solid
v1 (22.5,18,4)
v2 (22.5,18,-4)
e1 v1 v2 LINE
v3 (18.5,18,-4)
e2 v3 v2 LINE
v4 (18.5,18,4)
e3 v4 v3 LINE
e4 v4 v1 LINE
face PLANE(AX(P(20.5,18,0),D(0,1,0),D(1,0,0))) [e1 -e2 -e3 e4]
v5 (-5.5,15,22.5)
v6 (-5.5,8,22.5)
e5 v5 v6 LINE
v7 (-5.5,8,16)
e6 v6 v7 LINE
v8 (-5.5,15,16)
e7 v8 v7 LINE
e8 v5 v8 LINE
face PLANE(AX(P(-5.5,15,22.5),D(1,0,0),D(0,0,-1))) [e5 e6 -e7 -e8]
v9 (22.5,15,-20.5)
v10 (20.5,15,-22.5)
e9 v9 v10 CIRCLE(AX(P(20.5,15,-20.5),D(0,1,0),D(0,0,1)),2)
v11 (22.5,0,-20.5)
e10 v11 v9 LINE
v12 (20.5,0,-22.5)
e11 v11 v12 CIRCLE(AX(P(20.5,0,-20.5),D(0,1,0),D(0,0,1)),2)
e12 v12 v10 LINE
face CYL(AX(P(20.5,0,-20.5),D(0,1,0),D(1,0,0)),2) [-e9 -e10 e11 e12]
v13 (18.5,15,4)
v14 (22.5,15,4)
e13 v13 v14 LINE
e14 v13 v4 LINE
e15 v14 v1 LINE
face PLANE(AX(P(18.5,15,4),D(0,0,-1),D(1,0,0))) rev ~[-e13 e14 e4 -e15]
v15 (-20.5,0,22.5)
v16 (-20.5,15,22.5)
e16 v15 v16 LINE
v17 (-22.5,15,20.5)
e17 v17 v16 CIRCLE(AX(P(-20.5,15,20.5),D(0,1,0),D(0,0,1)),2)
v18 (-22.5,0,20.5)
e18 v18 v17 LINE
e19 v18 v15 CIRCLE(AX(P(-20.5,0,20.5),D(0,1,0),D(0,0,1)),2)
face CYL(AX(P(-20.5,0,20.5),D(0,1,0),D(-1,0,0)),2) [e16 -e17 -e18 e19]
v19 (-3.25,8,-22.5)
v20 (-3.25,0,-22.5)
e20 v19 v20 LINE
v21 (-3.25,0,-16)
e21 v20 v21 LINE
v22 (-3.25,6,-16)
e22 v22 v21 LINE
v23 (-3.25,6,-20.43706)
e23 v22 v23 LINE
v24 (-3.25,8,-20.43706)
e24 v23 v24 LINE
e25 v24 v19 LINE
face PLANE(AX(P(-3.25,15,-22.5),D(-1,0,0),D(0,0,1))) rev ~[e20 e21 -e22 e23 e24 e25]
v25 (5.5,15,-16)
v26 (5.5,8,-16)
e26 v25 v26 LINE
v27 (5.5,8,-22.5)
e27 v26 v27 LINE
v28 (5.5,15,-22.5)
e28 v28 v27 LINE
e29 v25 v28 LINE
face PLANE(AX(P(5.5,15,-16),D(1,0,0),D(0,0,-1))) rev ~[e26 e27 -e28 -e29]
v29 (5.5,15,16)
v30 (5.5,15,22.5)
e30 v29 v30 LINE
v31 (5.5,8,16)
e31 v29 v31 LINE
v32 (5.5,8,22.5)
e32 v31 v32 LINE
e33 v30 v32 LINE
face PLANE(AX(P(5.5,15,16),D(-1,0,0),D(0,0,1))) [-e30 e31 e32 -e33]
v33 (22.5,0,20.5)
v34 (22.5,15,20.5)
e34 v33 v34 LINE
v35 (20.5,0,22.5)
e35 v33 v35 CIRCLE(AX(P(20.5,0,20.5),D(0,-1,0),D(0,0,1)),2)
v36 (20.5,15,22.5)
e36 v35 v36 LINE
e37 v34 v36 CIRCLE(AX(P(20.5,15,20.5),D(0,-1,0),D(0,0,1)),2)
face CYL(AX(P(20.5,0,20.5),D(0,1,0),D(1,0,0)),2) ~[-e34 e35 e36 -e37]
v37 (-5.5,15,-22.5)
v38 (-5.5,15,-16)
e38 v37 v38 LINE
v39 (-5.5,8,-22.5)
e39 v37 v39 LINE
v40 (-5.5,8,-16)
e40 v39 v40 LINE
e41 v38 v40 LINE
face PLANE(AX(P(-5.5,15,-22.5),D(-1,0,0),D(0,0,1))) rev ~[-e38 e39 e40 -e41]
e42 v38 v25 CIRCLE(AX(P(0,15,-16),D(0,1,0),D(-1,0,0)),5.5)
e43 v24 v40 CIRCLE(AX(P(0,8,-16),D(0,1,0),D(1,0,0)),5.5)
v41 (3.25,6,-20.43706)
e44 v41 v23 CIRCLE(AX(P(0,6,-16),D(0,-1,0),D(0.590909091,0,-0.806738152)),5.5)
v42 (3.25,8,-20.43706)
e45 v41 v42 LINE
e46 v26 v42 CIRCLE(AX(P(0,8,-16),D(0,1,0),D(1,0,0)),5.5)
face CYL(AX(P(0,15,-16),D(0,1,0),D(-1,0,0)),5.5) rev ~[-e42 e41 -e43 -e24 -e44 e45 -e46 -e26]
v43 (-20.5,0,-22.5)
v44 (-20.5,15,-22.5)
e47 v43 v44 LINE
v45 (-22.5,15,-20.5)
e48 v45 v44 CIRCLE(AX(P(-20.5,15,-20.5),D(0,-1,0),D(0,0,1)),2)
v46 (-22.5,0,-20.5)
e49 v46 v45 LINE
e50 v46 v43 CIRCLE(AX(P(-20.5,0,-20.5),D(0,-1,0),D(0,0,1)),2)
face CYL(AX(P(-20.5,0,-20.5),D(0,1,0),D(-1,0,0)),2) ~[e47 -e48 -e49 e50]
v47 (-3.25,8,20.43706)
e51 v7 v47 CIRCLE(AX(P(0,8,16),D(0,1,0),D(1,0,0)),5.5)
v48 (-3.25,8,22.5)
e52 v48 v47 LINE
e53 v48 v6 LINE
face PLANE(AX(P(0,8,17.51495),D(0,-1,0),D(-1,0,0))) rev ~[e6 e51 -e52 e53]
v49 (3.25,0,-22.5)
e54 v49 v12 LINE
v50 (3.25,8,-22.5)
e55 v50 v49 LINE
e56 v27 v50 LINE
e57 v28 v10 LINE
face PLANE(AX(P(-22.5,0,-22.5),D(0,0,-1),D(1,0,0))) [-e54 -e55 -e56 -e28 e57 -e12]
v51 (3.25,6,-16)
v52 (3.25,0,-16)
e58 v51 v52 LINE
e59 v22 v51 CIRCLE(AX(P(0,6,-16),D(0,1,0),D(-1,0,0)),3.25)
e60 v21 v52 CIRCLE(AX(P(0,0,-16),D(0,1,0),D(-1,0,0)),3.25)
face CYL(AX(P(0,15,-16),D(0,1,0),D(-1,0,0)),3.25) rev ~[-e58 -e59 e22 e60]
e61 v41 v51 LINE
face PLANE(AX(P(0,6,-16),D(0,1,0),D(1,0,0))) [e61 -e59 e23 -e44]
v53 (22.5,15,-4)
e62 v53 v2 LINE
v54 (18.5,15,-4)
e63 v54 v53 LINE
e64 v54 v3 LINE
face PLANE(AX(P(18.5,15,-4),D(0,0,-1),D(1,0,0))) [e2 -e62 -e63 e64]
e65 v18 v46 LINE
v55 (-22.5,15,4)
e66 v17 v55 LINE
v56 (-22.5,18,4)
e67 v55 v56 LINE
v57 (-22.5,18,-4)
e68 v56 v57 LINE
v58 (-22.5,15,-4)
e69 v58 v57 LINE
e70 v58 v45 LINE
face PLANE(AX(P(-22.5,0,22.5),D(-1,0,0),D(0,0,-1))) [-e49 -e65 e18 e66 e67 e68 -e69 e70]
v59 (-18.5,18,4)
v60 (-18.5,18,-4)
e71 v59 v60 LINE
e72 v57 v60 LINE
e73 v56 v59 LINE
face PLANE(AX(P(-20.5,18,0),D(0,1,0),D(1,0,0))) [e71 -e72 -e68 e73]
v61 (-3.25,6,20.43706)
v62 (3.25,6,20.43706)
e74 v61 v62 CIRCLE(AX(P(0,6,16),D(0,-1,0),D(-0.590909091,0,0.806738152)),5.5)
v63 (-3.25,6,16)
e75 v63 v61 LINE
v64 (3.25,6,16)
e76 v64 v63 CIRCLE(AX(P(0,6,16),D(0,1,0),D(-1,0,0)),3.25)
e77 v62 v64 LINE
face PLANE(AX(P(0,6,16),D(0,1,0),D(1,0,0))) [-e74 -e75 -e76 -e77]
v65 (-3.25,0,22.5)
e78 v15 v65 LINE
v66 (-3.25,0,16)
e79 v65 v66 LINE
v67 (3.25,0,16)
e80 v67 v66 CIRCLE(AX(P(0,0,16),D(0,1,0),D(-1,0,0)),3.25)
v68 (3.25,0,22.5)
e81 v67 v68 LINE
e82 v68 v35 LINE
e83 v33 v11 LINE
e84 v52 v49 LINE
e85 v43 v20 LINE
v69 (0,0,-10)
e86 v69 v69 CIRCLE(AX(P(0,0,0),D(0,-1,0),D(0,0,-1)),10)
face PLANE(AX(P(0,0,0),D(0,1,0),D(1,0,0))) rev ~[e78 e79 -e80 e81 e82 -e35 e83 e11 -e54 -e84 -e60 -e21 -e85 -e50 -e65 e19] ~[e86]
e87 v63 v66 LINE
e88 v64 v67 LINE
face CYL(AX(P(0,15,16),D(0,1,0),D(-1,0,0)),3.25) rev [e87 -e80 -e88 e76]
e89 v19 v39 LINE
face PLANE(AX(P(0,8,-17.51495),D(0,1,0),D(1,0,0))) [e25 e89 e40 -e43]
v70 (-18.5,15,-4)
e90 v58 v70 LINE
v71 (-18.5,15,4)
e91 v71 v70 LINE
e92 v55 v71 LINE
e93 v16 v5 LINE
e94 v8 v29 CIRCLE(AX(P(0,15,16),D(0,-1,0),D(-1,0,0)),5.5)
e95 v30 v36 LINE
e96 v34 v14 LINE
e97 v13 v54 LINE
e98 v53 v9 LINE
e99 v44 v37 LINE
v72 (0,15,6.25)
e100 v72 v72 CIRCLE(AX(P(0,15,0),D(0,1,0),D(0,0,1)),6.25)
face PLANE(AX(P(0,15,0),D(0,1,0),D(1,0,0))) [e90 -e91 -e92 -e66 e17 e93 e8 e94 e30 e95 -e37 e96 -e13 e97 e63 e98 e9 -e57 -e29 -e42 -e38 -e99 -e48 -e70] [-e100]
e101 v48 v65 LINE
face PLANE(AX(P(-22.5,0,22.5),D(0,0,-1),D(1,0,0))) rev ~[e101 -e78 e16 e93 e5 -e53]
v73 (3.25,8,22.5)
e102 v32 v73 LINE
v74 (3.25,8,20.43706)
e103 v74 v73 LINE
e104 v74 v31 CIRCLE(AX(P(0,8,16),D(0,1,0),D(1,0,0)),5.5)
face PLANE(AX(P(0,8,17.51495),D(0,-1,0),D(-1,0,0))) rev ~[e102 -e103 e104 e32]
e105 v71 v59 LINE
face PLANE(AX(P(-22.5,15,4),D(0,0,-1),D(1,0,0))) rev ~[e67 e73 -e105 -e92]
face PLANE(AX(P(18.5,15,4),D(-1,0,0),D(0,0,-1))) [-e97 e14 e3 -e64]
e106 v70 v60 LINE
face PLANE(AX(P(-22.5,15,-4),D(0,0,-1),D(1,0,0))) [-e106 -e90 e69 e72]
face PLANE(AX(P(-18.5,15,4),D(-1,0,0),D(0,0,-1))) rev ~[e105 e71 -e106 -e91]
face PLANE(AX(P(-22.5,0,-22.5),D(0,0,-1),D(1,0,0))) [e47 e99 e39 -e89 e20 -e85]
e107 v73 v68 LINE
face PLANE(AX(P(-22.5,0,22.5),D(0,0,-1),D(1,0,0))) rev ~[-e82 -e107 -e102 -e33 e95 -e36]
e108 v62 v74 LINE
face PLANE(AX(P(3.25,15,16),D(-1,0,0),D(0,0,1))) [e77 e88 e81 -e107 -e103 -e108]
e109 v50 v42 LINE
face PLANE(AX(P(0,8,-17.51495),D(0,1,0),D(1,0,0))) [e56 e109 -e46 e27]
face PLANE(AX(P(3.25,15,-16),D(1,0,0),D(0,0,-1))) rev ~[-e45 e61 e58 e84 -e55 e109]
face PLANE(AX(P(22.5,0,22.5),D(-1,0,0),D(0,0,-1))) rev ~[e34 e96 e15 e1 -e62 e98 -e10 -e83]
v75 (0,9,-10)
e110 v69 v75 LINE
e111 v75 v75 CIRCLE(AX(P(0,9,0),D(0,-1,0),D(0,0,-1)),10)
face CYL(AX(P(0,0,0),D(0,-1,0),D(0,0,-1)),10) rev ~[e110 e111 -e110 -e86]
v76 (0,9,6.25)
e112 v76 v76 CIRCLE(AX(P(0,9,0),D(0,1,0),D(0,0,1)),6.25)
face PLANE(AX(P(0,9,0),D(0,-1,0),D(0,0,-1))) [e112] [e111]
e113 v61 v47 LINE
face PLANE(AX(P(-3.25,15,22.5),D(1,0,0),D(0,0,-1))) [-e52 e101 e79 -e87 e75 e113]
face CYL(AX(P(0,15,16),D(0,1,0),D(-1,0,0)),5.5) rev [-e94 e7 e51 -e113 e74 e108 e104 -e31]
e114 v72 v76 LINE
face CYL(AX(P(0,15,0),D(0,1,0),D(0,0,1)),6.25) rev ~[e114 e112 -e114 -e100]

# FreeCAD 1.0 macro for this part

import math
import FreeCAD as App
import Part
import Sketcher
from FreeCAD import Vector
Q = App.Units.Quantity


def edges_at(feature, points):
    """Names of the edges that pass closest to the given points."""
    edges = feature.Shape.Edges
    near = lambda p: min(range(len(edges)), key=lambda i: edges[i].distToShape(Part.Vertex(*p))[0])
    return sorted({f"Edge{near(p) + 1}" for p in points})

doc = App.newDocument("Part")
body = doc.addObject("PartDesign::Body", "Body")

sketch1 = body.newObject("Sketcher::SketchObject", "Sketch")
sketch1.AttachmentSupport = (doc.getObject("XZ_Plane"), [""])
sketch1.MapMode = "FlatFace"
sketch1.addGeometry(Part.LineSegment(Vector(-22, -22, 0), Vector(-22, 22, 0)), False)
sketch1.addGeometry(Part.LineSegment(Vector(-22, 22, 0), Vector(22, 22, 0)), False)
sketch1.addGeometry(Part.LineSegment(Vector(22, 22, 0), Vector(22, -22, 0)), False)
sketch1.addGeometry(Part.LineSegment(Vector(22, -22, 0), Vector(-22, -22, 0)), False)
sketch1.addConstraint(Sketcher.Constraint("Coincident", 0, 2, 1, 1))
sketch1.addConstraint(Sketcher.Constraint("Coincident", 1, 2, 2, 1))
sketch1.addConstraint(Sketcher.Constraint("Coincident", 2, 2, 3, 1))
sketch1.addConstraint(Sketcher.Constraint("Coincident", 3, 2, 0, 1))
sketch1.addConstraint(Sketcher.Constraint("Vertical", 0))
sketch1.addConstraint(Sketcher.Constraint("Horizontal", 1))
sketch1.addConstraint(Sketcher.Constraint("Vertical", 2))
sketch1.addConstraint(Sketcher.Constraint("Horizontal", 3))
sketch1.addConstraint(Sketcher.Constraint("Symmetric", 0, 2, 2, 2, -1, 1))
sketch1.addConstraint(Sketcher.Constraint("Equal", 3, 0))
sketch1.addConstraint(Sketcher.Constraint("DistanceX", 1, 1, 1, 2, Q("45 mm")))
pad1 = body.newObject("PartDesign::Pad", "Pad")
pad1.Profile = sketch1
pad1.Length = 15
pad1.Reversed = True

sketch2 = body.newObject("Sketcher::SketchObject", "Sketch001")
sketch2.AttachmentSupport = (doc.getObject("XZ_Plane"), [""])
sketch2.MapMode = "FlatFace"
sketch2.AttachmentOffset = App.Placement(Vector(0, 0, -15), App.Rotation())
sketch2.addGeometry(Part.LineSegment(Vector(-22.5, -4, 0), Vector(-22.5, 4, 0)), False)
sketch2.addGeometry(Part.LineSegment(Vector(-22.5, 4, 0), Vector(-18.5, 4, 0)), False)
sketch2.addGeometry(Part.LineSegment(Vector(-18.5, 4, 0), Vector(-18.5, -4, 0)), False)
sketch2.addGeometry(Part.LineSegment(Vector(-18.5, -4, 0), Vector(-22.5, -4, 0)), False)
sketch2.addGeometry(Part.LineSegment(Vector(18.5, -4, 0), Vector(18.5, 4, 0)), False)
sketch2.addGeometry(Part.LineSegment(Vector(18.5, 4, 0), Vector(22.5, 4, 0)), False)
sketch2.addGeometry(Part.LineSegment(Vector(22.5, 4, 0), Vector(22.5, -4, 0)), False)
sketch2.addGeometry(Part.LineSegment(Vector(22.5, -4, 0), Vector(18.5, -4, 0)), False)
sketch2.addConstraint(Sketcher.Constraint("Coincident", 0, 2, 1, 1))
sketch2.addConstraint(Sketcher.Constraint("Coincident", 1, 2, 2, 1))
sketch2.addConstraint(Sketcher.Constraint("Coincident", 2, 2, 3, 1))
sketch2.addConstraint(Sketcher.Constraint("Coincident", 3, 2, 0, 1))
sketch2.addConstraint(Sketcher.Constraint("Coincident", 4, 2, 5, 1))
sketch2.addConstraint(Sketcher.Constraint("Coincident", 5, 2, 6, 1))
sketch2.addConstraint(Sketcher.Constraint("Coincident", 6, 2, 7, 1))
sketch2.addConstraint(Sketcher.Constraint("Coincident", 7, 2, 4, 1))
sketch2.addConstraint(Sketcher.Constraint("Vertical", 0))
sketch2.addConstraint(Sketcher.Constraint("Horizontal", 1))
sketch2.addConstraint(Sketcher.Constraint("Vertical", 2))
sketch2.addConstraint(Sketcher.Constraint("Horizontal", 3))
sketch2.addConstraint(Sketcher.Constraint("Vertical", 4))
sketch2.addConstraint(Sketcher.Constraint("Horizontal", 5))
sketch2.addConstraint(Sketcher.Constraint("Vertical", 6))
sketch2.addConstraint(Sketcher.Constraint("Horizontal", 7))
sketch2.addConstraint(Sketcher.Constraint("Symmetric", 2, 2, 4, 2, -1, 1))
sketch2.addConstraint(Sketcher.Constraint("Symmetric", 0, 2, 6, 2, -1, 1))
sketch2.addConstraint(Sketcher.Constraint("Horizontal", 1, 2, 4, 2))
sketch2.addConstraint(Sketcher.Constraint("DistanceX", 1, 1, 1, 2, Q("4 mm")))
sketch2.addConstraint(Sketcher.Constraint("DistanceY", 0, 1, 0, 2, Q("8 mm")))
sketch2.addConstraint(Sketcher.Constraint("DistanceX", 1, 2, 4, 2, Q("37 mm")))
pad2 = body.newObject("PartDesign::Pad", "Pad001")
pad2.Profile = sketch2
pad2.Length = 3
pad2.Reversed = True

sketch3 = body.newObject("Sketcher::SketchObject", "Sketch002")
sketch3.AttachmentSupport = (doc.getObject("XZ_Plane"), [""])
sketch3.MapMode = "FlatFace"
sketch3.AttachmentOffset = App.Placement(Vector(0, 0, -15), App.Rotation())
sketch3.addGeometry(Part.Circle(Vector(0, 0, 0), Vector(0, 0, 1), 6.2), False)
sketch3.addGeometry(Part.LineSegment(Vector(-3.2, 16, 0), Vector(-3.2, 22.5, 0)), False)
sketch3.addGeometry(Part.LineSegment(Vector(-3.2, 22.5, 0), Vector(3.2, 22.5, 0)), False)
sketch3.addGeometry(Part.LineSegment(Vector(3.2, 22.5, 0), Vector(3.2, 16, 0)), False)
sketch3.addGeometry(Part.ArcOfCircle(Part.Circle(Vector(0, 16, 0), Vector(0, 0, 1), 3.2), math.radians(180), math.radians(360)), False)
sketch3.addGeometry(Part.LineSegment(Vector(3.2, -16, 0), Vector(3.2, -22.5, 0)), False)
sketch3.addGeometry(Part.LineSegment(Vector(3.2, -22.5, 0), Vector(-3.2, -22.5, 0)), False)
sketch3.addGeometry(Part.LineSegment(Vector(-3.2, -22.5, 0), Vector(-3.2, -16, 0)), False)
sketch3.addGeometry(Part.ArcOfCircle(Part.Circle(Vector(0, -16, 0), Vector(0, 0, 1), 3.2), math.radians(0), math.radians(180)), False)
sketch3.addConstraint(Sketcher.Constraint("Coincident", 1, 2, 2, 1))
sketch3.addConstraint(Sketcher.Constraint("Coincident", 2, 2, 3, 1))
sketch3.addConstraint(Sketcher.Constraint("Tangent", 3, 2, 4, 2))
sketch3.addConstraint(Sketcher.Constraint("Tangent", 4, 1, 1, 1))
sketch3.addConstraint(Sketcher.Constraint("Coincident", 5, 2, 6, 1))
sketch3.addConstraint(Sketcher.Constraint("Coincident", 6, 2, 7, 1))
sketch3.addConstraint(Sketcher.Constraint("Tangent", 7, 2, 8, 2))
sketch3.addConstraint(Sketcher.Constraint("Tangent", 8, 1, 5, 1))
sketch3.addConstraint(Sketcher.Constraint("Vertical", 1))
sketch3.addConstraint(Sketcher.Constraint("Horizontal", 2))
sketch3.addConstraint(Sketcher.Constraint("Vertical", 3))
sketch3.addConstraint(Sketcher.Constraint("Vertical", 5))
sketch3.addConstraint(Sketcher.Constraint("Horizontal", 6))
sketch3.addConstraint(Sketcher.Constraint("Vertical", 7))
sketch3.addConstraint(Sketcher.Constraint("Coincident", 0, 3, -1, 1))
sketch3.addConstraint(Sketcher.Constraint("Equal", 4, 8))
sketch3.addConstraint(Sketcher.Constraint("Symmetric", 4, 3, 8, 3, -1, 1))
sketch3.addConstraint(Sketcher.Constraint("Symmetric", 2, 2, 5, 2, -1))
sketch3.addConstraint(Sketcher.Constraint("Equal", 6, 1))
sketch3.addConstraint(Sketcher.Constraint("Diameter", 0, Q("12.5 mm")))
sketch3.addConstraint(Sketcher.Constraint("Radius", 4, Q("3.25 mm")))
sketch3.addConstraint(Sketcher.Constraint("DistanceY", -1, 1, 4, 3, Q("16 mm")))
pocket1 = body.newObject("PartDesign::Pocket", "Pocket")
pocket1.Profile = sketch3
pocket1.Type = "ThroughAll"
pocket1.Reversed = True

sketch4 = body.newObject("Sketcher::SketchObject", "Sketch003")
sketch4.AttachmentSupport = (doc.getObject("XZ_Plane"), [""])
sketch4.MapMode = "FlatFace"
sketch4.addGeometry(Part.Circle(Vector(0, 0, 0), Vector(0, 0, 1), 10), False)
sketch4.addConstraint(Sketcher.Constraint("Coincident", 0, 3, -1, 1))
sketch4.addConstraint(Sketcher.Constraint("Diameter", 0, Q("20 mm")))
pocket2 = body.newObject("PartDesign::Pocket", "Pocket001")
pocket2.Profile = sketch4
pocket2.Length = 9

sketch5 = body.newObject("Sketcher::SketchObject", "Sketch004")
sketch5.AttachmentSupport = (doc.getObject("XZ_Plane"), [""])
sketch5.MapMode = "FlatFace"
sketch5.AttachmentOffset = App.Placement(Vector(0, 0, -15), App.Rotation())
sketch5.addGeometry(Part.LineSegment(Vector(-6, 16, 0), Vector(-6, 22, 0)), False)
sketch5.addGeometry(Part.LineSegment(Vector(-6, 22, 0), Vector(6, 22, 0)), False)
sketch5.addGeometry(Part.LineSegment(Vector(6, 22, 0), Vector(6, 16, 0)), False)
sketch5.addGeometry(Part.ArcOfCircle(Part.Circle(Vector(0, 16, 0), Vector(0, 0, 1), 6), math.radians(180), math.radians(360)), False)
sketch5.addGeometry(Part.LineSegment(Vector(6, -16, 0), Vector(6, -22, 0)), False)
sketch5.addGeometry(Part.LineSegment(Vector(6, -22, 0), Vector(-6, -22, 0)), False)
sketch5.addGeometry(Part.LineSegment(Vector(-6, -22, 0), Vector(-6, -16, 0)), False)
sketch5.addGeometry(Part.ArcOfCircle(Part.Circle(Vector(0, -16, 0), Vector(0, 0, 1), 6), math.radians(0), math.radians(180)), False)
sketch5.addConstraint(Sketcher.Constraint("Coincident", 0, 2, 1, 1))
sketch5.addConstraint(Sketcher.Constraint("Coincident", 1, 2, 2, 1))
sketch5.addConstraint(Sketcher.Constraint("Tangent", 2, 2, 3, 2))
sketch5.addConstraint(Sketcher.Constraint("Tangent", 3, 1, 0, 1))
sketch5.addConstraint(Sketcher.Constraint("Coincident", 4, 2, 5, 1))
sketch5.addConstraint(Sketcher.Constraint("Coincident", 5, 2, 6, 1))
sketch5.addConstraint(Sketcher.Constraint("Tangent", 6, 2, 7, 2))
sketch5.addConstraint(Sketcher.Constraint("Tangent", 7, 1, 4, 1))
sketch5.addConstraint(Sketcher.Constraint("Vertical", 0))
sketch5.addConstraint(Sketcher.Constraint("Horizontal", 1))
sketch5.addConstraint(Sketcher.Constraint("Vertical", 2))
sketch5.addConstraint(Sketcher.Constraint("Vertical", 4))
sketch5.addConstraint(Sketcher.Constraint("Horizontal", 5))
sketch5.addConstraint(Sketcher.Constraint("Vertical", 6))
sketch5.addConstraint(Sketcher.Constraint("Equal", 3, 7))
sketch5.addConstraint(Sketcher.Constraint("Symmetric", 3, 3, 7, 3, -1, 1))
sketch5.addConstraint(Sketcher.Constraint("Symmetric", 1, 2, 4, 2, -1))
sketch5.addConstraint(Sketcher.Constraint("Radius", 3, Q("5.5 mm")))
sketch5.addConstraint(Sketcher.Constraint("DistanceY", 0, 1, 0, 2, Q("6.5 mm")))
sketch5.addConstraint(Sketcher.Constraint("DistanceY", -1, 1, 3, 3, Q("16 mm")))
pocket3 = body.newObject("PartDesign::Pocket", "Pocket002")
pocket3.Profile = sketch5
pocket3.Length = 7
pocket3.Reversed = True

sketch6 = body.newObject("Sketcher::SketchObject", "Sketch005")
sketch6.AttachmentSupport = (doc.getObject("XZ_Plane"), [""])
sketch6.MapMode = "FlatFace"
sketch6.AttachmentOffset = App.Placement(Vector(0, 0, -8), App.Rotation())
sketch6.addGeometry(Part.Circle(Vector(0, 16, 0), Vector(0, 0, 1), 6), False)
sketch6.addGeometry(Part.Circle(Vector(0, -16, 0), Vector(0, 0, 1), 6), False)
sketch6.addConstraint(Sketcher.Constraint("Equal", 0, 1))
sketch6.addConstraint(Sketcher.Constraint("Symmetric", 0, 3, 1, 3, -1, 1))
sketch6.addConstraint(Sketcher.Constraint("PointOnObject", 0, 3, -2))
sketch6.addConstraint(Sketcher.Constraint("Diameter", 0, Q("11 mm")))
sketch6.addConstraint(Sketcher.Constraint("DistanceY", -1, 1, 0, 3, Q("16 mm")))
pocket4 = body.newObject("PartDesign::Pocket", "Pocket003")
pocket4.Profile = sketch6
pocket4.Length = 2
pocket4.Reversed = True
doc.recompute()

fillet = body.newObject("PartDesign::Fillet", "Fillet")
fillet.Base = (pocket4, edges_at(pocket4, [
    (-22.5, 7.5, -22.5),
    (22.5, 7.5, -22.5),
    (22.5, 7.5, 22.5),
    (-22.5, 7.5, 22.5),
]))
fillet.Radius = 2

doc.recompute()
